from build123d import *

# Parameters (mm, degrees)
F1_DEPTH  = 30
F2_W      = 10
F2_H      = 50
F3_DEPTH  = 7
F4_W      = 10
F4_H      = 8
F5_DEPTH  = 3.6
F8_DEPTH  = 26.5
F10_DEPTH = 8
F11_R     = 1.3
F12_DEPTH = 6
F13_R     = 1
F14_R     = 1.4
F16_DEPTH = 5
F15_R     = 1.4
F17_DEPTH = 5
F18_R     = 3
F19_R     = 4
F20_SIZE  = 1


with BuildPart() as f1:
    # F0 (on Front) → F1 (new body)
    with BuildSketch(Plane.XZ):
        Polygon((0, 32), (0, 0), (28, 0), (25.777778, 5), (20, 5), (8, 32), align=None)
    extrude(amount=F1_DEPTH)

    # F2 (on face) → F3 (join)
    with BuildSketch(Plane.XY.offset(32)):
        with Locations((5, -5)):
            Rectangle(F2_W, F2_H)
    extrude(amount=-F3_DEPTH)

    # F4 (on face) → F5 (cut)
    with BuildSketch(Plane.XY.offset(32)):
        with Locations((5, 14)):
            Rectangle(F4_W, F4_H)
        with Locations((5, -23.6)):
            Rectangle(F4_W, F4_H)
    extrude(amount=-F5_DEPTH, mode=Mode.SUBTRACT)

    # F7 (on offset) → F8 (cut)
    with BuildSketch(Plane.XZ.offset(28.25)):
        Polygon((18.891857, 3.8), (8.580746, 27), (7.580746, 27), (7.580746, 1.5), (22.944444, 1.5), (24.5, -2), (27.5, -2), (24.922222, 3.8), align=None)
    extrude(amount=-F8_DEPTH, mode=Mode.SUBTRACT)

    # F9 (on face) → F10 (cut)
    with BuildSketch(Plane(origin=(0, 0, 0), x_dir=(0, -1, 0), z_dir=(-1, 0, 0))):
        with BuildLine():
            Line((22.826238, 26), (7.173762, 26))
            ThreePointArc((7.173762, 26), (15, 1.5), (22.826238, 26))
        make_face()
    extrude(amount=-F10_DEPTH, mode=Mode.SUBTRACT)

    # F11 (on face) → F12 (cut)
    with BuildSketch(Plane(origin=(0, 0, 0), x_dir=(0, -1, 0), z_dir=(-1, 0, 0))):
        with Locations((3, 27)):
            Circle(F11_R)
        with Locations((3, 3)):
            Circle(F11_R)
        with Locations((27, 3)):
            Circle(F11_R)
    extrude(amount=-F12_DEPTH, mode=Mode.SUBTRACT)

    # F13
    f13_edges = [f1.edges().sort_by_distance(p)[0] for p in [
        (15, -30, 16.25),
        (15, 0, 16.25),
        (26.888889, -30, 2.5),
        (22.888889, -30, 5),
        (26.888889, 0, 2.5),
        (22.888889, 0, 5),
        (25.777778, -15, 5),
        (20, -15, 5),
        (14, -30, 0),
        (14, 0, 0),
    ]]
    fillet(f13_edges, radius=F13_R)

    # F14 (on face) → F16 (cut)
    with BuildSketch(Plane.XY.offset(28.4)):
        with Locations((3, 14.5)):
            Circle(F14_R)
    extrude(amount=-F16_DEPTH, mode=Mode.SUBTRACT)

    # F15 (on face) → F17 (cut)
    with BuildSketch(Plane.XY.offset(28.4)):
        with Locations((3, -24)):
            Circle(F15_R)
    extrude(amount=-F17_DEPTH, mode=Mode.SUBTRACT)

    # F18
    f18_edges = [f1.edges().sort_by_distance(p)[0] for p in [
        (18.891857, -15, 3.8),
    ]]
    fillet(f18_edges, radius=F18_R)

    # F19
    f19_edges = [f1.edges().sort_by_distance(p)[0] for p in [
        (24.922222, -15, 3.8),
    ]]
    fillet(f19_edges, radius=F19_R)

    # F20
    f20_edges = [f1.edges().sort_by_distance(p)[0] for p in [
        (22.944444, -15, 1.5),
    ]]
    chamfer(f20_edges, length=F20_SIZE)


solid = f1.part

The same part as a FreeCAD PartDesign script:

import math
import FreeCAD as App
import Part
import Sketcher
from FreeCAD import Vector
Q = App.Units.Quantity


def edges_at(feature, points):
    """Names of the edges that pass closest to the given points."""
    edges = feature.Shape.Edges
    near = lambda p: min(range(len(edges)), key=lambda i: edges[i].distToShape(Part.Vertex(*p))[0])
    return sorted({f"Edge{near(p) + 1}" for p in points})

doc = App.newDocument("Part")
body = doc.addObject("PartDesign::Body", "Body")

sketch1 = body.newObject("Sketcher::SketchObject", "Sketch")
sketch1.AttachmentSupport = (doc.getObject("XZ_Plane"), [""])
sketch1.MapMode = "FlatFace"
sketch1.addGeometry([
    Part.LineSegment(Vector(0, 32, 0), Vector(0, 0, 0)),
    Part.LineSegment(Vector(0, 0, 0), Vector(28, 0, 0)),
    Part.LineSegment(Vector(28, 0, 0), Vector(25.777778, 5, 0)),
    Part.LineSegment(Vector(25.777778, 5, 0), Vector(20, 5, 0)),
    Part.LineSegment(Vector(20, 5, 0), Vector(8, 32, 0)),
    Part.LineSegment(Vector(8, 32, 0), Vector(0, 32, 0)),
], False)
sketch1.addConstraint([
    Sketcher.Constraint("Coincident", 0, 2, 1, 1),
    Sketcher.Constraint("Coincident", 1, 2, 2, 1),
    Sketcher.Constraint("Coincident", 2, 2, 3, 1),
    Sketcher.Constraint("Coincident", 3, 2, 4, 1),
    Sketcher.Constraint("Coincident", 4, 2, 5, 1),
    Sketcher.Constraint("Coincident", 5, 2, 0, 1),
    Sketcher.Constraint("Vertical", 0),
    Sketcher.Constraint("Horizontal", 1),
    Sketcher.Constraint("Horizontal", 3),
    Sketcher.Constraint("Horizontal", 5),
    Sketcher.Constraint("Coincident", 0, 2, -1, 1),
    Sketcher.Constraint("Parallel", 2, 4),
    Sketcher.Constraint("DistanceX", 1, 1, 1, 2, Q("28 mm")),
    Sketcher.Constraint("DistanceX", 5, 2, 5, 1, Q("8 mm")),
    Sketcher.Constraint("DistanceY", 0, 2, 0, 1, Q("32 mm")),
    Sketcher.Constraint("DistanceY", -1, 1, 2, 2, Q("5 mm")),
    Sketcher.Constraint("DistanceX", -1, 1, 3, 2, Q("20 mm")),
])
pad1 = body.newObject("PartDesign::Pad", "Pad")
pad1.Profile = sketch1
pad1.Length = 30

sketch2 = body.newObject("Sketcher::SketchObject", "Sketch001")
sketch2.AttachmentSupport = (doc.getObject("XY_Plane"), [""])
sketch2.MapMode = "FlatFace"
sketch2.AttachmentOffset = App.Placement(Vector(0, 0, 32), App.Rotation())
sketch2.addGeometry([
    Part.LineSegment(Vector(0, 20, 0), Vector(0, -30, 0)),
    Part.LineSegment(Vector(0, -30, 0), Vector(10, -30, 0)),
    Part.LineSegment(Vector(10, -30, 0), Vector(10, 20, 0)),
    Part.LineSegment(Vector(10, 20, 0), Vector(0, 20, 0)),
], False)
sketch2.addConstraint([
    Sketcher.Constraint("Coincident", 0, 2, 1, 1),
    Sketcher.Constraint("Coincident", 1, 2, 2, 1),
    Sketcher.Constraint("Coincident", 2, 2, 3, 1),
    Sketcher.Constraint("Coincident", 3, 2, 0, 1),
    Sketcher.Constraint("Vertical", 0),
    Sketcher.Constraint("Horizontal", 1),
    Sketcher.Constraint("Vertical", 2),
    Sketcher.Constraint("Horizontal", 3),
    Sketcher.Constraint("PointOnObject", 0, 2, -2),
    Sketcher.Constraint("DistanceX", 1, 1, 1, 2, Q("10 mm")),
    Sketcher.Constraint("DistanceY", 0, 2, 0, 1, Q("50 mm")),
    Sketcher.Constraint("DistanceY", 0, 2, -1, 1, Q("30 mm")),
])
pad2 = body.newObject("PartDesign::Pad", "Pad001")
pad2.Profile = sketch2
pad2.Length = 7
pad2.Reversed = True

sketch3 = body.newObject("Sketcher::SketchObject", "Sketch002")
sketch3.AttachmentSupport = (doc.getObject("XY_Plane"), [""])
sketch3.MapMode = "FlatFace"
sketch3.AttachmentOffset = App.Placement(Vector(0, 0, 32), App.Rotation())
sketch3.addGeometry([
    Part.LineSegment(Vector(0, 18, 0), Vector(0, 10, 0)),
    Part.LineSegment(Vector(0, 10, 0), Vector(10, 10, 0)),
    Part.LineSegment(Vector(10, 10, 0), Vector(10, 18, 0)),
    Part.LineSegment(Vector(10, 18, 0), Vector(0, 18, 0)),
    Part.LineSegment(Vector(0, -19.6, 0), Vector(0, -27.6, 0)),
    Part.LineSegment(Vector(0, -27.6, 0), Vector(10, -27.6, 0)),
    Part.LineSegment(Vector(10, -27.6, 0), Vector(10, -19.6, 0)),
    Part.LineSegment(Vector(10, -19.6, 0), Vector(0, -19.6, 0)),
], False)
sketch3.addConstraint([
    Sketcher.Constraint("Coincident", 0, 2, 1, 1),
    Sketcher.Constraint("Coincident", 1, 2, 2, 1),
    Sketcher.Constraint("Coincident", 2, 2, 3, 1),
    Sketcher.Constraint("Coincident", 3, 2, 0, 1),
    Sketcher.Constraint("Coincident", 4, 2, 5, 1),
    Sketcher.Constraint("Coincident", 5, 2, 6, 1),
    Sketcher.Constraint("Coincident", 6, 2, 7, 1),
    Sketcher.Constraint("Coincident", 7, 2, 4, 1),
    Sketcher.Constraint("Vertical", 0),
    Sketcher.Constraint("Horizontal", 1),
    Sketcher.Constraint("Vertical", 2),
    Sketcher.Constraint("Horizontal", 3),
    Sketcher.Constraint("Vertical", 4),
    Sketcher.Constraint("Horizontal", 5),
    Sketcher.Constraint("Vertical", 6),
    Sketcher.Constraint("Horizontal", 7),
    Sketcher.Constraint("PointOnObject", 0, 2, -2),
    Sketcher.Constraint("PointOnObject", 4, 2, -2),
    Sketcher.Constraint("Vertical", 2, 2, 5, 2),
    Sketcher.Constraint("Equal", 2, 4),
    Sketcher.Constraint("DistanceX", 1, 1, 1, 2, Q("10 mm")),
    Sketcher.Constraint("DistanceY", 0, 2, 0, 1, Q("8 mm")),
    Sketcher.Constraint("DistanceY", -1, 1, 0, 2, Q("10 mm")),
    Sketcher.Constraint("DistanceY", 4, 2, -1, 1, Q("27.6 mm")),
])
pocket1 = body.newObject("PartDesign::Pocket", "Pocket")
pocket1.Profile = sketch3
pocket1.Length = 3.6

sketch4 = body.newObject("Sketcher::SketchObject", "Sketch003")
sketch4.AttachmentSupport = (doc.getObject("XZ_Plane"), [""])
sketch4.MapMode = "FlatFace"
sketch4.AttachmentOffset = App.Placement(Vector(0, 0, 28.25), App.Rotation())
sketch4.addGeometry([
    Part.LineSegment(Vector(18.891857, 3.8, 0), Vector(8.580746, 27, 0)),
    Part.LineSegment(Vector(8.580746, 27, 0), Vector(7.580746, 27, 0)),
    Part.LineSegment(Vector(7.580746, 27, 0), Vector(7.580746, 1.5, 0)),
    Part.LineSegment(Vector(7.580746, 1.5, 0), Vector(22.944444, 1.5, 0)),
    Part.LineSegment(Vector(22.944444, 1.5, 0), Vector(24.5, -2, 0)),
    Part.LineSegment(Vector(24.5, -2, 0), Vector(27.5, -2, 0)),
    Part.LineSegment(Vector(27.5, -2, 0), Vector(24.922222, 3.8, 0)),
    Part.LineSegment(Vector(24.922222, 3.8, 0), Vector(18.891857, 3.8, 0)),
], False)
sketch4.addConstraint([
    Sketcher.Constraint("Coincident", 0, 2, 1, 1),
    Sketcher.Constraint("Coincident", 1, 2, 2, 1),
    Sketcher.Constraint("Coincident", 2, 2, 3, 1),
    Sketcher.Constraint("Coincident", 3, 2, 4, 1),
    Sketcher.Constraint("Coincident", 4, 2, 5, 1),
    Sketcher.Constraint("Coincident", 5, 2, 6, 1),
    Sketcher.Constraint("Coincident", 6, 2, 7, 1),
    Sketcher.Constraint("Coincident", 7, 2, 0, 1),
    Sketcher.Constraint("Horizontal", 1),
    Sketcher.Constraint("Vertical", 2),
    Sketcher.Constraint("Horizontal", 3),
    Sketcher.Constraint("Horizontal", 5),
    Sketcher.Constraint("Horizontal", 7),
    Sketcher.Constraint("Parallel", 0, 4),
    Sketcher.Constraint("Parallel", 4, 6),
    Sketcher.Constraint("DistanceX", 1, 2, 1, 1, Q("1 mm")),
    Sketcher.Constraint("DistanceX", 5, 1, 5, 2, Q("3 mm")),
    Sketcher.Constraint("DistanceY", 2, 2, 2, 1, Q("25.5 mm")),
    Sketcher.Constraint("DistanceY", -1, 1, 0, 2, Q("27 mm")),
    Sketcher.Constraint("DistanceY", 4, 2, -1, 1, Q("2 mm")),
    Sketcher.Constraint("DistanceX", -1, 1, 4, 2, Q("24.5 mm")),
    Sketcher.Constraint("DistanceY", -1, 1, 6, 2, Q("3.8 mm")),
    Sketcher.Constraint("DistanceX", 0, 2, 3, 2, Q("14.363698 mm")),
    Sketcher.Constraint("Distance", 4, Q("3.830112 mm")),
])
pocket2 = body.newObject("PartDesign::Pocket", "Pocket001")
pocket2.Profile = sketch4
pocket2.Length = 26.5

sketch5 = body.newObject("Sketcher::SketchObject", "Sketch004")
sketch5.AttachmentSupport = (doc.getObject("YZ_Plane"), [""])
sketch5.MapMode = "FlatFace"
sketch5.addGeometry([
    Part.LineSegment(Vector(-22.826238, 26, 0), Vector(-7.173762, 26, 0)),
    Part.ArcOfCircle(Part.Circle(Vector(-15, 15, 0), Vector(0, 0, 1), 13.5), math.radians(125.430945), math.radians(414.569055)),
], False)
sketch5.addConstraint([
    Sketcher.Constraint("Coincident", 0, 1, 1, 1),
    Sketcher.Constraint("Coincident", 1, 2, 0, 2),
    Sketcher.Constraint("Horizontal", 0),
    Sketcher.Constraint("Radius", 1, Q("13.5 mm")),
    Sketcher.Constraint("DistanceX", 1, 3, -1, 1, Q("15 mm")),
    Sketcher.Constraint("DistanceY", -1, 1, 1, 3, Q("15 mm")),
    Sketcher.Constraint("DistanceY", -1, 1, 0, 1, Q("26 mm")),
])
pocket3 = body.newObject("PartDesign::Pocket", "Pocket002")
pocket3.Profile = sketch5
pocket3.Length = 8
pocket3.Reversed = True

sketch6 = body.newObject("Sketcher::SketchObject", "Sketch005")
sketch6.AttachmentSupport = (doc.getObject("YZ_Plane"), [""])
sketch6.MapMode = "FlatFace"
sketch6.addGeometry([
    Part.Circle(Vector(-3, 27, 0), Vector(0, 0, 1), 1.3),
    Part.Circle(Vector(-3, 3, 0), Vector(0, 0, 1), 1.3),
    Part.Circle(Vector(-27, 3, 0), Vector(0, 0, 1), 1.3),
], False)
sketch6.addConstraint([
    Sketcher.Constraint("Equal", 0, 1),
    Sketcher.Constraint("Equal", 1, 2),
    Sketcher.Constraint("Horizontal", 1, 3, 2, 3),
    Sketcher.Constraint("Vertical", 0, 3, 1, 3),
    Sketcher.Constraint("Diameter", 0, Q("2.6 mm")),
    Sketcher.Constraint("DistanceX", 0, 3, -1, 1, Q("3 mm")),
    Sketcher.Constraint("DistanceY", -1, 1, 0, 3, Q("27 mm")),
    Sketcher.Constraint("DistanceY", -1, 1, 1, 3, Q("3 mm")),
    Sketcher.Constraint("DistanceX", 2, 3, -1, 1, Q("27 mm")),
])
pocket4 = body.newObject("PartDesign::Pocket", "Pocket003")
pocket4.Profile = sketch6
pocket4.Length = 6
pocket4.Reversed = True
doc.recompute()

fillet = body.newObject("PartDesign::Fillet", "Fillet")
fillet.Base = (pocket4, edges_at(pocket4, [
    (15, -30, 16.25),
    (15, 0, 16.25),
    (26.889, -30, 2.5),
    (22.889, -30, 5),
    (26.889, 0, 2.5),
    (22.889, 0, 5),
    (25.778, -15, 5),
    (20, -15, 5),
    (14, -30, 0),
    (14, 0, 0),
]))
fillet.Radius = 1

sketch7 = body.newObject("Sketcher::SketchObject", "Sketch006")
sketch7.AttachmentSupport = (doc.getObject("XY_Plane"), [""])
sketch7.MapMode = "FlatFace"
sketch7.AttachmentOffset = App.Placement(Vector(0, 0, 28.4), App.Rotation())
sketch7.addGeometry(Part.Circle(Vector(3, 14.5, 0), Vector(0, 0, 1), 1.4), False)
sketch7.addConstraint([
    Sketcher.Constraint("Diameter", 0, Q("2.8 mm")),
    Sketcher.Constraint("DistanceX", -1, 1, 0, 3, Q("3 mm")),
    Sketcher.Constraint("DistanceY", -1, 1, 0, 3, Q("14.5 mm")),
])
pocket5 = body.newObject("PartDesign::Pocket", "Pocket004")
pocket5.Profile = sketch7
pocket5.Length = 5

sketch8 = body.newObject("Sketcher::SketchObject", "Sketch007")
sketch8.AttachmentSupport = (doc.getObject("XY_Plane"), [""])
sketch8.MapMode = "FlatFace"
sketch8.AttachmentOffset = App.Placement(Vector(0, 0, 28.4), App.Rotation())
sketch8.addGeometry(Part.Circle(Vector(3, -24, 0), Vector(0, 0, 1), 1.4), False)
sketch8.addConstraint([
    Sketcher.Constraint("Diameter", 0, Q("2.8 mm")),
    Sketcher.Constraint("DistanceX", -1, 1, 0, 3, Q("3 mm")),
    Sketcher.Constraint("DistanceY", 0, 3, -1, 1, Q("24 mm")),
])
pocket6 = body.newObject("PartDesign::Pocket", "Pocket005")
pocket6.Profile = sketch8
pocket6.Length = 5
doc.recompute()

fillet2 = body.newObject("PartDesign::Fillet", "Fillet001")
fillet2.Base = (pocket6, edges_at(pocket6, [(18.892, -15, 3.8)]))
fillet2.Radius = 3
doc.recompute()

fillet3 = body.newObject("PartDesign::Fillet", "Fillet002")
fillet3.Base = (fillet2, edges_at(fillet2, [(24.922, -15, 3.8)]))
fillet3.Radius = 4
doc.recompute()

chamfer = body.newObject("PartDesign::Chamfer", "Chamfer")
chamfer.Base = (fillet3, edges_at(fillet3, [(22.944, -15, 1.5)]))
chamfer.Size = 1

doc.recompute()
